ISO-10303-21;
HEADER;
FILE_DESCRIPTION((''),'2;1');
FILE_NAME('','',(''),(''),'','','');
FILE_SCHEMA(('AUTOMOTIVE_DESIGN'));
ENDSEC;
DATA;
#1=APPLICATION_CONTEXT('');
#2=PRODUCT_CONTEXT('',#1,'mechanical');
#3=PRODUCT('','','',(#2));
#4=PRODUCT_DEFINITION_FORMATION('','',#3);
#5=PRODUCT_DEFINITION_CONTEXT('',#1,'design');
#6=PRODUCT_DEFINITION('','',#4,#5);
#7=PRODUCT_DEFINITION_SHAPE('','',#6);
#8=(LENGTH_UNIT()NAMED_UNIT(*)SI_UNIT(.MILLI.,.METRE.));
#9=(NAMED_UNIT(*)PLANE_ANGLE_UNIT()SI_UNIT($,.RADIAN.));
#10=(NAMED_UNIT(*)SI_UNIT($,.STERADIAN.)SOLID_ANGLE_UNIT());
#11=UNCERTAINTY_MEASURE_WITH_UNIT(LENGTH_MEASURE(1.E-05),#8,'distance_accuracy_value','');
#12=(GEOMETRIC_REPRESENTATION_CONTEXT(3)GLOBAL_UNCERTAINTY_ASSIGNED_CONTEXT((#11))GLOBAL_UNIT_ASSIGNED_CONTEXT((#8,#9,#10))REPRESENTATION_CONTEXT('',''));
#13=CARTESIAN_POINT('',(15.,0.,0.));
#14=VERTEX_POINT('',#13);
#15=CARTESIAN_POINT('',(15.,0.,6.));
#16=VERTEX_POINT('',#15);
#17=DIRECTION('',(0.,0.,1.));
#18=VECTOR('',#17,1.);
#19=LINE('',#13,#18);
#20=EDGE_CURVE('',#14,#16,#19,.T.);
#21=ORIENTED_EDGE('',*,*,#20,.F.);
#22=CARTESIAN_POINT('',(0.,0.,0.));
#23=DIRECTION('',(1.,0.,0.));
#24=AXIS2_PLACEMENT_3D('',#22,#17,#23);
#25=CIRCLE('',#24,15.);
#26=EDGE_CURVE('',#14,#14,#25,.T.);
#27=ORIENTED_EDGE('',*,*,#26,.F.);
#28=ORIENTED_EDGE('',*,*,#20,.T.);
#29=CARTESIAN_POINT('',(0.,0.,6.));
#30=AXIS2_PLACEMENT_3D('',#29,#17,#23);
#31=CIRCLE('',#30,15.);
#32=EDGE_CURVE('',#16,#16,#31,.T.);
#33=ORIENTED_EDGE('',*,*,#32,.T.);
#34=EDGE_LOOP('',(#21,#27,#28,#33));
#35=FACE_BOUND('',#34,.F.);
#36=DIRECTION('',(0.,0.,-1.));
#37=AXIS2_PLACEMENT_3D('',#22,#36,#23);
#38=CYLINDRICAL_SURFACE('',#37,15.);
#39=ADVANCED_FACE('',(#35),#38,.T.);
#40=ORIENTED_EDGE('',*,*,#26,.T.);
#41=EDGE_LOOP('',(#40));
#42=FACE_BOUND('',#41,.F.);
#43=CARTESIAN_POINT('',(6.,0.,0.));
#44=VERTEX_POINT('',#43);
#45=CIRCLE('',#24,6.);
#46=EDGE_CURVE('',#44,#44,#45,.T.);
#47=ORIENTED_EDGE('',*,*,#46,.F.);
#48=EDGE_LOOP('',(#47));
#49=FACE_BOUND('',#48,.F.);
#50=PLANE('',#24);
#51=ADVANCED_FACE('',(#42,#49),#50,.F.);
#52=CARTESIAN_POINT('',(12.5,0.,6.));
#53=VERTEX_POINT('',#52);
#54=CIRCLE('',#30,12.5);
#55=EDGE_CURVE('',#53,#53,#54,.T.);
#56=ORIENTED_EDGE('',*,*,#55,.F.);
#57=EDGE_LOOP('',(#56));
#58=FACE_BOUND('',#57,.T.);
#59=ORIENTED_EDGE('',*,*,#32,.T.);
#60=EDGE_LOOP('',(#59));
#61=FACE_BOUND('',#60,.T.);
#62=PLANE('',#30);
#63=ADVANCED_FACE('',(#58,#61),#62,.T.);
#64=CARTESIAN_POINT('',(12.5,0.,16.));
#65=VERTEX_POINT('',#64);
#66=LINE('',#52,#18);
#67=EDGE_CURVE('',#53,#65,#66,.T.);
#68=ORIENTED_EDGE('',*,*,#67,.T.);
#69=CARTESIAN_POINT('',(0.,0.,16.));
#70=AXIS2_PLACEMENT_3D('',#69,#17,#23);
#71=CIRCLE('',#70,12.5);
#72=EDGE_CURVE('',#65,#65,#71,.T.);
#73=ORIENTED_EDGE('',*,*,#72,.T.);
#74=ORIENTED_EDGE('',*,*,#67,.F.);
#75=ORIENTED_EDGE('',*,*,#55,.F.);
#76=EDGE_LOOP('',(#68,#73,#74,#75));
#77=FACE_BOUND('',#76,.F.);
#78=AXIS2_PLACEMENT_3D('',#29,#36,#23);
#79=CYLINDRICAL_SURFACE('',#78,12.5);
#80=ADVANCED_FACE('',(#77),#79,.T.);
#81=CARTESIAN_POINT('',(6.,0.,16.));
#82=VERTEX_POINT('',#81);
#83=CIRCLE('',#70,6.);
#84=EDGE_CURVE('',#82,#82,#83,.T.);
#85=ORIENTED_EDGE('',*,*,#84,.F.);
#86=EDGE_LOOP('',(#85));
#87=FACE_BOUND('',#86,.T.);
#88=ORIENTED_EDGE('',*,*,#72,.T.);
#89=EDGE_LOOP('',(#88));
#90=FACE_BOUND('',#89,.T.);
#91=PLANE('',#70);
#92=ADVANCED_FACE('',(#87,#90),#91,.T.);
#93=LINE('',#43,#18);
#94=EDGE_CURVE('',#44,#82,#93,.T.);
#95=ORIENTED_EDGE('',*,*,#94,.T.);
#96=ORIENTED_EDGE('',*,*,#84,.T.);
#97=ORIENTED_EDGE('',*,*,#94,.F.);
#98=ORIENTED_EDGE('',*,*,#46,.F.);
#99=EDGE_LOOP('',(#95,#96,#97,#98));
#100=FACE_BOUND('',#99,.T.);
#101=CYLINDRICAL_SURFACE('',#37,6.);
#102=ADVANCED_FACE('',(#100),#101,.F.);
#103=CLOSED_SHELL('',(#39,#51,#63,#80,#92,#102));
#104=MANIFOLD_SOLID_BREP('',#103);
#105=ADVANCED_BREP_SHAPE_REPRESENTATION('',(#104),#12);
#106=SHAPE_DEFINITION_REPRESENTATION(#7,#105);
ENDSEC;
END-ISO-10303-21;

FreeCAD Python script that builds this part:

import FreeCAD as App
import Part
import Sketcher
from FreeCAD import Vector
Q = App.Units.Quantity

doc = App.newDocument("Part")
body = doc.addObject("PartDesign::Body", "Body")

# Sketch on XY plane
sketch1 = body.newObject("Sketcher::SketchObject", "Sketch")
sketch1.AttachmentSupport = (doc.getObject("XY_Plane"), [""])
sketch1.MapMode = "FlatFace"
sketch1.addGeometry(Part.Circle(Vector(0, 0, 0), Vector(0, 0, 1), 15), False)
sketch1.addGeometry(Part.Circle(Vector(0, 0, 0), Vector(0, 0, 1), 6), False)
sketch1.addConstraint(Sketcher.Constraint("Coincident", 0, 3, -1, 1))
sketch1.addConstraint(Sketcher.Constraint("Coincident", 1, 3, -1, 1))
sketch1.addConstraint(Sketcher.Constraint("Diameter", 0, Q("30 mm")))
sketch1.addConstraint(Sketcher.Constraint("Diameter", 1, Q("12 mm")))
pad1 = body.newObject("PartDesign::Pad", "Pad")
pad1.Profile = sketch1
pad1.Length = 6

# Sketch on XY plane
sketch2 = body.newObject("Sketcher::SketchObject", "Sketch001")
sketch2.AttachmentSupport = (doc.getObject("XY_Plane"), [""])
sketch2.MapMode = "FlatFace"
sketch2.AttachmentOffset = App.Placement(Vector(0, 0, 6), App.Rotation())
sketch2.addGeometry(Part.Circle(Vector(0, 0, 0), Vector(0, 0, 1), 12), False)
sketch2.addGeometry(Part.Circle(Vector(0, 0, 0), Vector(0, 0, 1), 6), False)
sketch2.addConstraint(Sketcher.Constraint("Coincident", 0, 3, -1, 1))
sketch2.addConstraint(Sketcher.Constraint("Coincident", 1, 3, -1, 1))
sketch2.addConstraint(Sketcher.Constraint("Diameter", 0, Q("25 mm")))
sketch2.addConstraint(Sketcher.Constraint("Diameter", 1, Q("12 mm")))
pad2 = body.newObject("PartDesign::Pad", "Pad001")
pad2.Profile = sketch2
pad2.Length = 10

doc.recompute()
